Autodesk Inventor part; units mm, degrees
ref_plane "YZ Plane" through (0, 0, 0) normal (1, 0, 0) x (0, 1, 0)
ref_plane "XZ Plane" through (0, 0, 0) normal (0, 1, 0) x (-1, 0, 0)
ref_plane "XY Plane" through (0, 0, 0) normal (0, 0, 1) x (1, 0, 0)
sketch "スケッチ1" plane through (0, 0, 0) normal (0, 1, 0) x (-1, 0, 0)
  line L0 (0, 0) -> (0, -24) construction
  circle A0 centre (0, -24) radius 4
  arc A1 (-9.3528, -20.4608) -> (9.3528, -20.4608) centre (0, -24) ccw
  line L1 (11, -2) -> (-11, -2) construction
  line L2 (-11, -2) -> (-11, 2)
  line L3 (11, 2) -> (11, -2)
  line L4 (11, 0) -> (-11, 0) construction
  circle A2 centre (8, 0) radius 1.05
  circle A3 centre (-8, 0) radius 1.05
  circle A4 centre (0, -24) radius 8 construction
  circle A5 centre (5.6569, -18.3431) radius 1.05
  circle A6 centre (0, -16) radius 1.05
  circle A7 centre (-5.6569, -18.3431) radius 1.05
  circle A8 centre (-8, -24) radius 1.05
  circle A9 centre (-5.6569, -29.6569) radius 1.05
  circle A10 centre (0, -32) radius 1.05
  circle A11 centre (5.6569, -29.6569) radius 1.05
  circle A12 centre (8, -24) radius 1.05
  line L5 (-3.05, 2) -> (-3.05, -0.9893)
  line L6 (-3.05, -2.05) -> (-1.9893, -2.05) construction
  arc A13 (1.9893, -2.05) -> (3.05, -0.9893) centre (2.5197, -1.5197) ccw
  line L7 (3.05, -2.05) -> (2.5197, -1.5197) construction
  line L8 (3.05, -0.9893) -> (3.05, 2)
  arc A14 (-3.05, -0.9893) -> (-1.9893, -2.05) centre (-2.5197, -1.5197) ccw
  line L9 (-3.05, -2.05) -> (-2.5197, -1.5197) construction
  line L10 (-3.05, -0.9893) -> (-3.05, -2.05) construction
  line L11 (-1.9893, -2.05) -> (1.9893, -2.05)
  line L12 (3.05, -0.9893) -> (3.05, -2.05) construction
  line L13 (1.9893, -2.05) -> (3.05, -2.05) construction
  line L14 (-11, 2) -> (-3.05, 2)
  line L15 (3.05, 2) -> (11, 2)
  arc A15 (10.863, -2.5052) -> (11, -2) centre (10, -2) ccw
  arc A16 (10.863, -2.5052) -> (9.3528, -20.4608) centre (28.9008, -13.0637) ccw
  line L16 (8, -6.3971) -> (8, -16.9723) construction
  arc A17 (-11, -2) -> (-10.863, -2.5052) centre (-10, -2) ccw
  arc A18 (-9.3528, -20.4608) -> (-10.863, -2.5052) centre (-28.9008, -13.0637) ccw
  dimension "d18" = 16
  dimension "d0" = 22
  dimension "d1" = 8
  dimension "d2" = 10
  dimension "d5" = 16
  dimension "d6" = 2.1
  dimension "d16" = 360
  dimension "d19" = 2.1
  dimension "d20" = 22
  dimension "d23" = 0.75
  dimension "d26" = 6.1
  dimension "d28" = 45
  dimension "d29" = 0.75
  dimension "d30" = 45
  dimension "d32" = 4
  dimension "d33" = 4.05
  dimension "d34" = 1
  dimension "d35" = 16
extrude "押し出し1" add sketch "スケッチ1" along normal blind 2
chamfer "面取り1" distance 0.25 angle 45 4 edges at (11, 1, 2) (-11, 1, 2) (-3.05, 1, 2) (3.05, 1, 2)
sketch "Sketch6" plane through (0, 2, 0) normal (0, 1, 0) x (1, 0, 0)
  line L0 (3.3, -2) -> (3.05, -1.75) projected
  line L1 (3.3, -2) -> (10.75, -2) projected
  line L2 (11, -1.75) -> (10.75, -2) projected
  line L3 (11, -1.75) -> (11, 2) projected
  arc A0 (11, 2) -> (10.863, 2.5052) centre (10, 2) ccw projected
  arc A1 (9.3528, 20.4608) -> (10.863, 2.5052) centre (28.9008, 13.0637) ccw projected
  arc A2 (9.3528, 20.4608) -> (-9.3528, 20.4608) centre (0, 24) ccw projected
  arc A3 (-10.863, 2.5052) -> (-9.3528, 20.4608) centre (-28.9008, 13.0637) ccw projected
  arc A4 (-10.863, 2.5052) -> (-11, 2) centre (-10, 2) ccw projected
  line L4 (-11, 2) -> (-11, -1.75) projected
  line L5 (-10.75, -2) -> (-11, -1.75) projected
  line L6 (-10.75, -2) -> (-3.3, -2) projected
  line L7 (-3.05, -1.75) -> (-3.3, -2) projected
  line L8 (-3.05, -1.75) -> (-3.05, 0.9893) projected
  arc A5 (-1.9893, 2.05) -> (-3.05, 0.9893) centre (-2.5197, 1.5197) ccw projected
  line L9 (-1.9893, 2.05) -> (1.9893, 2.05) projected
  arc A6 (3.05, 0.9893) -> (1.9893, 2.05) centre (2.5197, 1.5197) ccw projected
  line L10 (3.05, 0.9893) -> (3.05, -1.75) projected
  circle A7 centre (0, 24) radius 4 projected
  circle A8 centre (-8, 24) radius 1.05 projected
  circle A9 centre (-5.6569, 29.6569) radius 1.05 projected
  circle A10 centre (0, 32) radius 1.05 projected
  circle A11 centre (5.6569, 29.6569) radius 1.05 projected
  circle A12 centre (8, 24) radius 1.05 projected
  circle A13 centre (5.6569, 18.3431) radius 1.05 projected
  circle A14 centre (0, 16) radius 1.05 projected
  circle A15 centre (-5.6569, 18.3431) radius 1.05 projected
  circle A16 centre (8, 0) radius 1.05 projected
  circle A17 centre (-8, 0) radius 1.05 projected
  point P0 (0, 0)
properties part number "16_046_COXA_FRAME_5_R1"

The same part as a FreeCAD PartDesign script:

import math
import FreeCAD as App
import Part
import Sketcher
from FreeCAD import Vector
Q = App.Units.Quantity


def edges_at(feature, points):
    """Names of the edges that pass closest to the given points."""
    edges = feature.Shape.Edges
    near = lambda p: min(range(len(edges)), key=lambda i: edges[i].distToShape(Part.Vertex(*p))[0])
    return sorted({f"Edge{near(p) + 1}" for p in points})

doc = App.newDocument("Part")
body = doc.addObject("PartDesign::Body", "Body")

sketch1 = body.newObject("Sketcher::SketchObject", "Sketch")
sketch1.AttachmentSupport = (doc.getObject("XZ_Plane"), [""])
sketch1.MapMode = "FlatFace"
sketch1.addGeometry([
    Part.ArcOfCircle(Part.Circle(Vector(28.9, -13.1, 0), Vector(0, 0, 1), 20.9), math.radians(150), math.radians(201)),
    Part.ArcOfCircle(Part.Circle(Vector(0, -24, 0), Vector(0, 0, 1), 10), math.radians(159), math.radians(381)),
    Part.ArcOfCircle(Part.Circle(Vector(-28.9, -13.1, 0), Vector(0, 0, 1), 20.9), math.radians(-21), math.radians(30)),
    Part.ArcOfCircle(Part.Circle(Vector(-10, -2, 0), Vector(0, 0, 1), 1), math.radians(180), math.radians(210)),
    Part.LineSegment(Vector(-11, -2, 0), Vector(-11, 2, 0)),
    Part.LineSegment(Vector(-11, 2, 0), Vector(-3, 2, 0)),
    Part.LineSegment(Vector(-3, 2, 0), Vector(-3, -1, 0)),
    Part.ArcOfCircle(Part.Circle(Vector(-2.5, -1.5, 0), Vector(0, 0, 1), 0.8), math.radians(135), math.radians(315)),
    Part.LineSegment(Vector(-2, -2, 0), Vector(2, -2, 0)),
    Part.ArcOfCircle(Part.Circle(Vector(2.5, -1.5, 0), Vector(0, 0, 1), 0.8), math.radians(-135), math.radians(45)),
    Part.LineSegment(Vector(3, -1, 0), Vector(3, 2, 0)),
    Part.LineSegment(Vector(3, 2, 0), Vector(11, 2, 0)),
    Part.LineSegment(Vector(11, 2, 0), Vector(11, -2, 0)),
    Part.ArcOfCircle(Part.Circle(Vector(10, -2, 0), Vector(0, 0, 1), 1), math.radians(-30), math.radians(0)),
    Part.Circle(Vector(5.7, -29.7, 0), Vector(0, 0, 1), 1.1),
    Part.Circle(Vector(8, -24, 0), Vector(0, 0, 1), 1.1),
    Part.Circle(Vector(5.7, -18.3, 0), Vector(0, 0, 1), 1.1),
    Part.Circle(Vector(0, -32, 0), Vector(0, 0, 1), 1.1),
    Part.Circle(Vector(-5.7, -29.7, 0), Vector(0, 0, 1), 1.1),
    Part.Circle(Vector(0, -24, 0), Vector(0, 0, 1), 4),
    Part.Circle(Vector(-8, -24, 0), Vector(0, 0, 1), 1.1),
    Part.Circle(Vector(-5.7, -18.3, 0), Vector(0, 0, 1), 1.1),
    Part.Circle(Vector(8, 0, 0), Vector(0, 0, 1), 1.1),
    Part.Circle(Vector(0, -16, 0), Vector(0, 0, 1), 1.1),
    Part.Circle(Vector(-8, 0, 0), Vector(0, 0, 1), 1.1),
], False)
sketch1.addConstraint([
    Sketcher.Constraint("Tangent", 0, 2, 1, 2),
    Sketcher.Constraint("Tangent", 1, 1, 2, 1),
    Sketcher.Constraint("Tangent", 2, 2, 3, 2),
    Sketcher.Constraint("Tangent", 3, 1, 4, 1),
    Sketcher.Constraint("Coincident", 4, 2, 5, 1),
    Sketcher.Constraint("Coincident", 5, 2, 6, 1),
    Sketcher.Constraint("Coincident", 6, 2, 7, 1),
    Sketcher.Constraint("Coincident", 7, 2, 8, 1),
    Sketcher.Constraint("Coincident", 8, 2, 9, 1),
    Sketcher.Constraint("Coincident", 9, 2, 10, 1),
    Sketcher.Constraint("Coincident", 10, 2, 11, 1),
    Sketcher.Constraint("Coincident", 11, 2, 12, 1),
    Sketcher.Constraint("Tangent", 12, 2, 13, 2),
    Sketcher.Constraint("Tangent", 13, 1, 0, 1),
    Sketcher.Constraint("Vertical", 4),
    Sketcher.Constraint("Horizontal", 5),
    Sketcher.Constraint("Vertical", 6),
    Sketcher.Constraint("Horizontal", 8),
    Sketcher.Constraint("Vertical", 10),
    Sketcher.Constraint("Horizontal", 11),
    Sketcher.Constraint("Vertical", 12),
    Sketcher.Constraint("Coincident", 19, 3, 1, 3),
    Sketcher.Constraint("Equal", 0, 2),
    Sketcher.Constraint("Equal", 7, 9),
    Sketcher.Constraint("Equal", 3, 13),
    Sketcher.Constraint("Equal", 14, 15),
    Sketcher.Constraint("Equal", 15, 16),
    Sketcher.Constraint("Equal", 16, 17),
    Sketcher.Constraint("Equal", 17, 18),
    Sketcher.Constraint("Equal", 18, 20),
    Sketcher.Constraint("Equal", 20, 21),
    Sketcher.Constraint("Equal", 21, 22),
    Sketcher.Constraint("Equal", 22, 23),
    Sketcher.Constraint("Equal", 23, 24),
    Sketcher.Constraint("Symmetric", 22, 3, 24, 3, -1, 1),
    Sketcher.Constraint("Symmetric", 3, 1, 11, 2, -1, 1),
    Sketcher.Constraint("Symmetric", 0, 3, 2, 3, -2),
    Sketcher.Constraint("Symmetric", 7, 3, 9, 3, -2),
    Sketcher.Constraint("Symmetric", 14, 3, 18, 3, -2),
    Sketcher.Constraint("Symmetric", 15, 3, 20, 3, -2),
    Sketcher.Constraint("Symmetric", 16, 3, 21, 3, -2),
    Sketcher.Constraint("Symmetric", 5, 2, 10, 2, -2),
    Sketcher.Constraint("PointOnObject", 17, 3, -2),
    Sketcher.Constraint("PointOnObject", 22, 3, -1),
    Sketcher.Constraint("PointOnObject", 23, 3, -2),
    Sketcher.Constraint("Horizontal", 1, 3, 15, 3),
    Sketcher.Constraint("Vertical", 14, 3, 16, 3),
    Sketcher.Constraint("Vertical", 15, 3, 22, 3),
    Sketcher.Constraint("Diameter", 19, Q("8 mm")),
    Sketcher.Constraint("Radius", 1, Q("10 mm")),
    Sketcher.Constraint("Radius", 3, Q("1 mm")),
    Sketcher.Constraint("Diameter", 14, Q("2.1 mm")),
    Sketcher.Constraint("DistanceY", 4, 1, 4, 2, Q("4 mm")),
    Sketcher.Constraint("Radius", 7, Q("0.75 mm")),
    Sketcher.Constraint("DistanceX", 3, 3, -1, 1, Q("10 mm")),
    Sketcher.Constraint("DistanceX", -1, 1, 15, 3, Q("8 mm")),
    Sketcher.Constraint("DistanceY", 23, 3, -1, 1, Q("16 mm")),
    Sketcher.Constraint("DistanceY", 1, 3, 3, 3, Q("22 mm")),
    Sketcher.Constraint("DistanceY", 17, 3, 1, 3, Q("8 mm")),
    Sketcher.Constraint("DistanceX", 5, 2, 10, 2, Q("6.1 mm")),
    Sketcher.Constraint("DistanceY", 7, 2, 5, 2, Q("4.05 mm")),
    Sketcher.Constraint("Radius", 0, Q("20.9008 mm")),
    Sketcher.Constraint("DistanceX", 8, 1, 8, 2, Q("3.9786 mm")),
    Sketcher.Constraint("DistanceX", -1, 1, 14, 3, Q("5.657 mm")),
    Sketcher.Constraint("DistanceY", 14, 3, -1, 1, Q("29.657 mm")),
    Sketcher.Constraint("DistanceY", 16, 3, -1, 1, Q("18.343 mm")),
    Sketcher.Constraint("DistanceX", 2, 3, 7, 3, Q("26.381 mm")),
])
pad1 = body.newObject("PartDesign::Pad", "Pad")
pad1.Profile = sketch1
pad1.Length = 2
pad1.Reversed = True
doc.recompute()

chamfer = body.newObject("PartDesign::Chamfer", "Chamfer")
chamfer.Base = (pad1, edges_at(pad1, [
    (11, 1, 2),
    (-11, 1, 2),
    (-3.05, 1, 2),
    (3.05, 1, 2),
]))
chamfer.Size = 0.25

doc.recompute()
